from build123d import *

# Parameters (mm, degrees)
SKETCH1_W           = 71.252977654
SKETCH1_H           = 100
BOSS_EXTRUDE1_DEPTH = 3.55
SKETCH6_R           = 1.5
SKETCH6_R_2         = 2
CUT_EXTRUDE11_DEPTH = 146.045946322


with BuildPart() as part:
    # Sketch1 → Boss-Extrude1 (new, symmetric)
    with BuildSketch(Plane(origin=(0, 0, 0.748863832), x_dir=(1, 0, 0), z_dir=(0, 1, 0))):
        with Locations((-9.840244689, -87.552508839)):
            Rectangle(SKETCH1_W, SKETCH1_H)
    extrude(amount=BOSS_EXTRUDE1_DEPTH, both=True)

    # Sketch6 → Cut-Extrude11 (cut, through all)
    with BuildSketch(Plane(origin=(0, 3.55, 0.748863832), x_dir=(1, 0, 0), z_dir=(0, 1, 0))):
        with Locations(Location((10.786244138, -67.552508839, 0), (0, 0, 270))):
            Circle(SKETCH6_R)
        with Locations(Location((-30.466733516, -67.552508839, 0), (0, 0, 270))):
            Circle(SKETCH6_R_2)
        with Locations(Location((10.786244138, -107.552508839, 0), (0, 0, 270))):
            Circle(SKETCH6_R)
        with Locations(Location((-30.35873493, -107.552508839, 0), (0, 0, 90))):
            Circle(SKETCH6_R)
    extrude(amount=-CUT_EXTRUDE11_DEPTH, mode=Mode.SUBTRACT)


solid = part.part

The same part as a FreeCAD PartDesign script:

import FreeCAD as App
import Part
import Sketcher

V = App.Vector
Q = App.Units.Quantity

doc = App.newDocument("Part")
body = doc.addObject("PartDesign::Body", "Body")

# Sketch on XZ plane
sketch1 = body.newObject("Sketcher::SketchObject", "Sketch")
sketch1.AttachmentSupport = (doc.getObject("XZ_Plane"), [""])
sketch1.MapMode = "FlatFace"
sketch1.addGeometry([
    Part.LineSegment(V(-45, 38, 0), V(-45, 138, 0)),
    Part.LineSegment(V(-45, 138, 0), V(26, 138, 0)),
    Part.LineSegment(V(26, 138, 0), V(26, 38, 0)),
    Part.LineSegment(V(26, 38, 0), V(-45, 38, 0)),
], False)
sketch1.addConstraint([
    Sketcher.Constraint("Coincident", 0, 2, 1, 1),
    Sketcher.Constraint("Coincident", 1, 2, 2, 1),
    Sketcher.Constraint("Coincident", 2, 2, 3, 1),
    Sketcher.Constraint("Coincident", 3, 2, 0, 1),
    Sketcher.Constraint("Vertical", 0),
    Sketcher.Constraint("Horizontal", 1),
    Sketcher.Constraint("Vertical", 2),
    Sketcher.Constraint("Horizontal", 3),
    Sketcher.Constraint("DistanceY", 0, 1, 0, 2, Q("100 mm")),
    Sketcher.Constraint("DistanceX", 1, 1, 1, 2, Q("71.252978 mm")),
    Sketcher.Constraint("DistanceX", 0, 2, -1, 1, Q("45.466734 mm")),
    Sketcher.Constraint("DistanceY", -1, 1, 0, 2, Q("138.301373 mm")),
])
pad1 = body.newObject("PartDesign::Pad", "Pad")
pad1.Profile = sketch1
pad1.Length = 7.1
pad1.Midplane = True

# Sketch on XZ plane
sketch2 = body.newObject("Sketcher::SketchObject", "Sketch001")
sketch2.AttachmentSupport = (doc.getObject("XZ_Plane"), [""])
sketch2.MapMode = "FlatFace"
sketch2.AttachmentOffset = App.Placement(V(0, 0, -3.55), App.Rotation())
sketch2.addGeometry([
    Part.Circle(V(10.8, 68.3, 0), V(0, 0, 1), 1.5),
    Part.Circle(V(-30.5, 68.3, 0), V(0, 0, 1), 2),
    Part.Circle(V(10.8, 108.3, 0), V(0, 0, 1), 1.5),
    Part.Circle(V(-30.4, 108.3, 0), V(0, 0, 1), 1.5),
], False)
sketch2.addConstraint([
    Sketcher.Constraint("Equal", 0, 2),
    Sketcher.Constraint("Equal", 2, 3),
    Sketcher.Constraint("Horizontal", 0, 3, 1, 3),
    Sketcher.Constraint("Horizontal", 2, 3, 3, 3),
    Sketcher.Constraint("Vertical", 0, 3, 2, 3),
    Sketcher.Constraint("Diameter", 0, Q("3 mm")),
    Sketcher.Constraint("Diameter", 1, Q("4 mm")),
    Sketcher.Constraint("DistanceY", 0, 3, 2, 3, Q("40 mm")),
    Sketcher.Constraint("DistanceX", 1, 3, 3, 3, Q("0.107999 mm")),
    Sketcher.Constraint("DistanceX", 3, 3, 2, 3, Q("41.144979 mm")),
    Sketcher.Constraint("DistanceX", -1, 1, 0, 3, Q("10.786244 mm")),
    Sketcher.Constraint("DistanceY", -1, 1, 0, 3, Q("68.301373 mm")),
])
pocket1 = body.newObject("PartDesign::Pocket", "Pocket")
pocket1.Profile = sketch2
pocket1.Type = "ThroughAll"
pocket1.Reversed = True

doc.recompute()
